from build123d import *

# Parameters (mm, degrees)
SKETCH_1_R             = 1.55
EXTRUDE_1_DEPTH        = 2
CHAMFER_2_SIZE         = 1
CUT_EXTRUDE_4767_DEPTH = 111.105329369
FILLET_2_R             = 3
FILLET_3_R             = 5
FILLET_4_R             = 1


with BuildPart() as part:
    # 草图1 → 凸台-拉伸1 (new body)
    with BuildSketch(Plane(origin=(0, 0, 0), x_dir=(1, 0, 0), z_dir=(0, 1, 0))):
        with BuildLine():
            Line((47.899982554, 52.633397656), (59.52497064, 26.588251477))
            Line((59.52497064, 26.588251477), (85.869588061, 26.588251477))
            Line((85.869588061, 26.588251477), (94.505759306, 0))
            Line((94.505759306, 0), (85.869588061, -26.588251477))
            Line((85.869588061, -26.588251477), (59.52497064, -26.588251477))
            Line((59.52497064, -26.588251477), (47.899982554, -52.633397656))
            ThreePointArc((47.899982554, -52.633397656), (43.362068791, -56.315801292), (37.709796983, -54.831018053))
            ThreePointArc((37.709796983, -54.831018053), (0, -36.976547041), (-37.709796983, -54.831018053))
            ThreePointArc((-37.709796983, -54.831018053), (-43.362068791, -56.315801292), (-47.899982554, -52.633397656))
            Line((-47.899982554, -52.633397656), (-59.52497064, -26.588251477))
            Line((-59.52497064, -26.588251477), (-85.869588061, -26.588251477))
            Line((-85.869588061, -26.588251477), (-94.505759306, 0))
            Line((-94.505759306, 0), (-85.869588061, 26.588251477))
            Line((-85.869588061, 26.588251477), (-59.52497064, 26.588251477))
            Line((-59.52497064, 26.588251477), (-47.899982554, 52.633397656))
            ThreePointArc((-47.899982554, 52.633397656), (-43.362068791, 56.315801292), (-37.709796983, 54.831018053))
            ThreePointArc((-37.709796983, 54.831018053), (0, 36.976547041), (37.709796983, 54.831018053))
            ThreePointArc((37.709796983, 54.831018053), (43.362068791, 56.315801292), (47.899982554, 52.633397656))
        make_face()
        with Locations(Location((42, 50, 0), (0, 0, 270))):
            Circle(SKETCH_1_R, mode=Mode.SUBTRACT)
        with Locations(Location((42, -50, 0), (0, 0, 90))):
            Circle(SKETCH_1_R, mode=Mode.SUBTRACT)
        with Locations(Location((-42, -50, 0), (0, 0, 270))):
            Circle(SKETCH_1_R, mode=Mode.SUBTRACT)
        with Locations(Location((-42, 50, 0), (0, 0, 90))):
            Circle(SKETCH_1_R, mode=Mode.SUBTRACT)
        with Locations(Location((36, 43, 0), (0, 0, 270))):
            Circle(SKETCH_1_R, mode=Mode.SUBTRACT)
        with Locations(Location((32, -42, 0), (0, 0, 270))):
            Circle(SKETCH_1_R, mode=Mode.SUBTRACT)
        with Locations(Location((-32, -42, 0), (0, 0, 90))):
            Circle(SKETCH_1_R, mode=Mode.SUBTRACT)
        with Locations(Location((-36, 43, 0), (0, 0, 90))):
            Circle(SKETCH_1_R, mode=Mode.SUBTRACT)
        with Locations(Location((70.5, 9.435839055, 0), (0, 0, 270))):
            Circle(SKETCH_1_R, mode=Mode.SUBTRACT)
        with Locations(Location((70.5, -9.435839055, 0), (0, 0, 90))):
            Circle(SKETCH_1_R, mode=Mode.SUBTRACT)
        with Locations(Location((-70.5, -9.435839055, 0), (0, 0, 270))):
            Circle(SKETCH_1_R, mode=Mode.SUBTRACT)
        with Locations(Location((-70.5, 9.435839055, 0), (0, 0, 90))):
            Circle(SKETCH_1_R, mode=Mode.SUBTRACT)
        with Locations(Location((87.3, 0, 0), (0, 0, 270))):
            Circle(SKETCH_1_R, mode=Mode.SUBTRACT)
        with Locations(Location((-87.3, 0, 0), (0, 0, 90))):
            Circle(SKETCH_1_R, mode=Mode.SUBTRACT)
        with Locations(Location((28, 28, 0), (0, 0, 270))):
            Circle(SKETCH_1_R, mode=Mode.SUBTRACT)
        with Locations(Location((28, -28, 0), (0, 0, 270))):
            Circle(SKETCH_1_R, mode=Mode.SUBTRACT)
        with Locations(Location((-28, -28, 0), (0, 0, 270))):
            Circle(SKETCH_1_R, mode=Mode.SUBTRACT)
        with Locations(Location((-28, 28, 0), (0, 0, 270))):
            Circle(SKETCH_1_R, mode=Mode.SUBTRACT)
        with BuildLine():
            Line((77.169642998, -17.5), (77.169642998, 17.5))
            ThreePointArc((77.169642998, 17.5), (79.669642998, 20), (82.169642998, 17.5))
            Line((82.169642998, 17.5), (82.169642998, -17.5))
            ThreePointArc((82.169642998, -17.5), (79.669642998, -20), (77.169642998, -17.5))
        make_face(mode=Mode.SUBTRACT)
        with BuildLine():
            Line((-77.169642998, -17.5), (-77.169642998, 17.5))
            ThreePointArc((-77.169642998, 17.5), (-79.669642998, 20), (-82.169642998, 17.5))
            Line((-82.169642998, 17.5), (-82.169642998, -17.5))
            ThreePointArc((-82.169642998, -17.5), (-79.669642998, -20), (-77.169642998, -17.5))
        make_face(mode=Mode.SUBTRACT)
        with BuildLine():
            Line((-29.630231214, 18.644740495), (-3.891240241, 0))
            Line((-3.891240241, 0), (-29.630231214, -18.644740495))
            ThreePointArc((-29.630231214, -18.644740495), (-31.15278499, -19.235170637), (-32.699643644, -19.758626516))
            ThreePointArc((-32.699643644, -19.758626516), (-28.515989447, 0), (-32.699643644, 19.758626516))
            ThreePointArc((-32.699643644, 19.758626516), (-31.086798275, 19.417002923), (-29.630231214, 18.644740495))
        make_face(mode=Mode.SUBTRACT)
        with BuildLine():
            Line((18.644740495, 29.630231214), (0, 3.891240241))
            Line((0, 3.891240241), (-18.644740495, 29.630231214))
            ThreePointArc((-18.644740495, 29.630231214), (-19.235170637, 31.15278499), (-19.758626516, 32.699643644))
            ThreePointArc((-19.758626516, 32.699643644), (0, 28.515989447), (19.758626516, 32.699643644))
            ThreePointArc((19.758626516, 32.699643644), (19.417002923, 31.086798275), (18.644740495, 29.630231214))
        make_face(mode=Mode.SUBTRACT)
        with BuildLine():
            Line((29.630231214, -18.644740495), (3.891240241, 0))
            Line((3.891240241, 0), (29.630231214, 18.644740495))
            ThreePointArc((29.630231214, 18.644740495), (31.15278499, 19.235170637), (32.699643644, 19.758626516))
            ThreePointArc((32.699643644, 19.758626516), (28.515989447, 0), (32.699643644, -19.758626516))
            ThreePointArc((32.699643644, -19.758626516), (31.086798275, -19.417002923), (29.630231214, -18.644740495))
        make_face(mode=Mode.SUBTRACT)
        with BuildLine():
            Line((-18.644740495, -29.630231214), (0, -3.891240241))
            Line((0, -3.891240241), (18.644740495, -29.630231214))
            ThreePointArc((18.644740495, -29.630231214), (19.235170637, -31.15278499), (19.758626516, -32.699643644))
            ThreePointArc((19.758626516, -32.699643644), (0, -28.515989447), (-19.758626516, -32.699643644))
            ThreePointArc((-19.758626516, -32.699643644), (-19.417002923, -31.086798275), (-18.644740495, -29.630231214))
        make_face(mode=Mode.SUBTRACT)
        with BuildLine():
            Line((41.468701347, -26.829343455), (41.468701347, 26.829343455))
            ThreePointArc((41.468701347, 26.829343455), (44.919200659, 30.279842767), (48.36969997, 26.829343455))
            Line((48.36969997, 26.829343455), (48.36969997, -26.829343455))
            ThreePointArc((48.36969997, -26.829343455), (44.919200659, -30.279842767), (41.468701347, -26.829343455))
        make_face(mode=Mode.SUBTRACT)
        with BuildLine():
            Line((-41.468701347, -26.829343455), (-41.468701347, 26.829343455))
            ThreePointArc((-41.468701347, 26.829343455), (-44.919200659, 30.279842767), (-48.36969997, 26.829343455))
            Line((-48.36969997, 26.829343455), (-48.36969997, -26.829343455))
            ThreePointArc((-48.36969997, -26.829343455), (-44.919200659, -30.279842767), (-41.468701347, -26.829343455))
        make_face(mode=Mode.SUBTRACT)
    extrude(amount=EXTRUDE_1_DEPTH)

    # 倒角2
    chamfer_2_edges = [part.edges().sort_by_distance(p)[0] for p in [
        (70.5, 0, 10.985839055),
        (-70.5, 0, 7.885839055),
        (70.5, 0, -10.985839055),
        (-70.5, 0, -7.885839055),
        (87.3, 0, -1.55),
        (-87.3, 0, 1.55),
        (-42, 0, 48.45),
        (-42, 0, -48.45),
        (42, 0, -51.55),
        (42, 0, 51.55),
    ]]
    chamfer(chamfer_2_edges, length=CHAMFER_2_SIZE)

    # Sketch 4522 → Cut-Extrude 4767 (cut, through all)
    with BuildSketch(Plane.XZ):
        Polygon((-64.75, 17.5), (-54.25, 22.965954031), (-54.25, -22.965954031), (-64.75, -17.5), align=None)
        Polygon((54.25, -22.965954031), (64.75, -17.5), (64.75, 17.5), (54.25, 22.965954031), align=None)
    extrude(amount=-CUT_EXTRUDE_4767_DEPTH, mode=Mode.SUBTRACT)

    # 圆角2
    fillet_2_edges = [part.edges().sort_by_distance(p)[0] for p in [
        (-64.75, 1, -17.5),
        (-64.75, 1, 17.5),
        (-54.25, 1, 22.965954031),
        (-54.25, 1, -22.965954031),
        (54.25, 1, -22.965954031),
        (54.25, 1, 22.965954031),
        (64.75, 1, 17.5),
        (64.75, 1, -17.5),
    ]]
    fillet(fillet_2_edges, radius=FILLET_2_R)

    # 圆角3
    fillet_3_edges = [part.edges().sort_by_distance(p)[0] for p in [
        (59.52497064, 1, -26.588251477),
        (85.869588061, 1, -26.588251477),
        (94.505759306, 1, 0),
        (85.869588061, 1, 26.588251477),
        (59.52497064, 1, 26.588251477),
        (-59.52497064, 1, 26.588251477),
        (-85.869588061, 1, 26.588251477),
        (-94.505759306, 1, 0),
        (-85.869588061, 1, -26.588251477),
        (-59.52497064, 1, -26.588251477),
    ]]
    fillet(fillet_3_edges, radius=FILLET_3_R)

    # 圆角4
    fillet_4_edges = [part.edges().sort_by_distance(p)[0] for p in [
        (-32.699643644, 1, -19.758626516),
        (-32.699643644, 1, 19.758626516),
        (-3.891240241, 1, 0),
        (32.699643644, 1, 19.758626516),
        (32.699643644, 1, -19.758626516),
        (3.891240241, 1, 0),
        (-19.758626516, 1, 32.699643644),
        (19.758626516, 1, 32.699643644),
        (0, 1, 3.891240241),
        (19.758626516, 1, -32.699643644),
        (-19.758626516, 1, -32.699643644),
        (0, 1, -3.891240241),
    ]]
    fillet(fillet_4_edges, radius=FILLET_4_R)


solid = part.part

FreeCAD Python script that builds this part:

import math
import FreeCAD as App
import Part
import Sketcher
from FreeCAD import Vector
Q = App.Units.Quantity


def edges_at(feature, points):
    """Names of the edges that pass closest to the given points."""
    edges = feature.Shape.Edges
    near = lambda p: min(range(len(edges)), key=lambda i: edges[i].distToShape(Part.Vertex(*p))[0])
    return sorted({f"Edge{near(p) + 1}" for p in points})


def add_polygon(sketch, points):
    """Adds a closed chain of lines whose ends are joined by coincident constraints."""
    first, n = sketch.GeometryCount, len(points)
    for a, b in zip(points, points[1:] + points[:1]):
        sketch.addGeometry(Part.LineSegment(App.Vector(*a, 0), App.Vector(*b, 0)), False)
    for i in range(n):
        sketch.addConstraint(Sketcher.Constraint("Coincident", first + i, 2, first + (i + 1) % n, 1))

doc = App.newDocument("Part")
body = doc.addObject("PartDesign::Body", "Body")

# Sketch on XZ plane
sketch1 = doc.addObject("Sketcher::SketchObject", "Sketch")
body.addObject(sketch1)
sketch1.AttachmentSupport = (doc.XZ_Plane, [""])
sketch1.MapMode = "FlatFace"
sketch1.addGeometry(Part.LineSegment(Vector(59.5, -26.6, 0), Vector(47.9, -52.6, 0)), False)
sketch1.addGeometry(Part.ArcOfCircle(Part.Circle(Vector(42, -50, 0), Vector(0, 0, 1), 6.5), math.radians(-132), math.radians(-24)), False)
sketch1.addGeometry(Part.ArcOfCircle(Part.Circle(Vector(0, -85.7, 0), Vector(0, 0, 1), 48.7), math.radians(39), math.radians(141)), False)
sketch1.addGeometry(Part.ArcOfCircle(Part.Circle(Vector(-42, -50, 0), Vector(0, 0, 1), 6.5), math.radians(-156), math.radians(-48)), False)
sketch1.addGeometry(Part.LineSegment(Vector(-47.9, -52.6, 0), Vector(-59.5, -26.6, 0)), False)
sketch1.addGeometry(Part.LineSegment(Vector(-59.5, -26.6, 0), Vector(-85.9, -26.6, 0)), False)
sketch1.addGeometry(Part.LineSegment(Vector(-85.9, -26.6, 0), Vector(-94.5, 0, 0)), False)
sketch1.addGeometry(Part.LineSegment(Vector(-94.5, 0, 0), Vector(-85.9, 26.6, 0)), False)
sketch1.addGeometry(Part.LineSegment(Vector(-85.9, 26.6, 0), Vector(-59.5, 26.6, 0)), False)
sketch1.addGeometry(Part.LineSegment(Vector(-59.5, 26.6, 0), Vector(-47.9, 52.6, 0)), False)
sketch1.addGeometry(Part.ArcOfCircle(Part.Circle(Vector(-42, 50, 0), Vector(0, 0, 1), 6.5), math.radians(48), math.radians(156)), False)
sketch1.addGeometry(Part.ArcOfCircle(Part.Circle(Vector(0, 85.7, 0), Vector(0, 0, 1), 48.7), math.radians(-141), math.radians(-39)), False)
sketch1.addGeometry(Part.ArcOfCircle(Part.Circle(Vector(42, 50, 0), Vector(0, 0, 1), 6.5), math.radians(24), math.radians(132)), False)
sketch1.addGeometry(Part.LineSegment(Vector(47.9, 52.6, 0), Vector(59.5, 26.6, 0)), False)
sketch1.addGeometry(Part.LineSegment(Vector(59.5, 26.6, 0), Vector(85.9, 26.6, 0)), False)
sketch1.addGeometry(Part.LineSegment(Vector(85.9, 26.6, 0), Vector(94.5, 0, 0)), False)
sketch1.addGeometry(Part.LineSegment(Vector(94.5, 0, 0), Vector(85.9, -26.6, 0)), False)
sketch1.addGeometry(Part.LineSegment(Vector(85.9, -26.6, 0), Vector(59.5, -26.6, 0)), False)
sketch1.addGeometry(Part.Circle(Vector(42, 50, 0), Vector(0, 0, 1), 1.6), False)
sketch1.addGeometry(Part.Circle(Vector(32, 42, 0), Vector(0, 0, 1), 1.6), False)
sketch1.addGeometry(Part.Circle(Vector(28, 28, 0), Vector(0, 0, 1), 1.6), False)
sketch1.addGeometry(Part.Circle(Vector(70.5, 9.4, 0), Vector(0, 0, 1), 1.6), False)
sketch1.addGeometry(Part.Circle(Vector(-42, 50, 0), Vector(0, 0, 1), 1.6), False)
sketch1.addGeometry(Part.Circle(Vector(-32, 42, 0), Vector(0, 0, 1), 1.6), False)
sketch1.addGeometry(Part.Circle(Vector(-28, 28, 0), Vector(0, 0, 1), 1.6), False)
sketch1.addGeometry(Part.LineSegment(Vector(-18.6, 29.6, 0), Vector(0, 3.9, 0)), False)
sketch1.addGeometry(Part.LineSegment(Vector(0, 3.9, 0), Vector(18.6, 29.6, 0)), False)
sketch1.addGeometry(Part.ArcOfCircle(Part.Circle(Vector(-15.9, 43.9, 0), Vector(0, 0, 1), 37.4), math.radians(-22.45), math.radians(-17.45)), False)
sketch1.addGeometry(Part.ArcOfCircle(Part.Circle(Vector(0, 77.3, 0), Vector(0, 0, 1), 48.8), math.radians(-114), math.radians(-66)), False)
sketch1.addGeometry(Part.ArcOfCircle(Part.Circle(Vector(-13.8, 33.1, 0), Vector(0, 0, 1), 5.9), math.radians(-176), math.radians(-144)), False)
sketch1.addGeometry(Part.Circle(Vector(-70.5, 9.4, 0), Vector(0, 0, 1), 1.6), False)
sketch1.addGeometry(Part.Circle(Vector(87.3, 0, 0), Vector(0, 0, 1), 1.6), False)
sketch1.addGeometry(Part.LineSegment(Vector(77.2, 17.5, 0), Vector(77.2, -17.5, 0)), False)
sketch1.addGeometry(Part.ArcOfCircle(Part.Circle(Vector(79.7, -17.5, 0), Vector(0, 0, 1), 2.5), math.radians(180), math.radians(360)), False)
sketch1.addGeometry(Part.LineSegment(Vector(82.2, -17.5, 0), Vector(82.2, 17.5, 0)), False)
sketch1.addGeometry(Part.ArcOfCircle(Part.Circle(Vector(79.7, 17.5, 0), Vector(0, 0, 1), 2.5), math.radians(0), math.radians(180)), False)
sketch1.addGeometry(Part.Circle(Vector(70.5, -9.4, 0), Vector(0, 0, 1), 1.6), False)
sketch1.addGeometry(Part.LineSegment(Vector(41.5, 26.8, 0), Vector(41.5, -26.8, 0)), False)
sketch1.addGeometry(Part.ArcOfCircle(Part.Circle(Vector(44.9, -26.8, 0), Vector(0, 0, 1), 3.5), math.radians(180), math.radians(360)), False)
sketch1.addGeometry(Part.LineSegment(Vector(48.4, -26.8, 0), Vector(48.4, 26.8, 0)), False)
sketch1.addGeometry(Part.ArcOfCircle(Part.Circle(Vector(44.9, 26.8, 0), Vector(0, 0, 1), 3.5), math.radians(0), math.radians(180)), False)
sketch1.addGeometry(Part.LineSegment(Vector(29.6, 18.6, 0), Vector(3.9, 0, 0)), False)
sketch1.addGeometry(Part.LineSegment(Vector(3.9, 0, 0), Vector(29.6, -18.6, 0)), False)
sketch1.addGeometry(Part.ArcOfCircle(Part.Circle(Vector(43.9, 15.9, 0), Vector(0, 0, 1), 37.4), math.radians(-112.45), math.radians(-107.45)), False)
sketch1.addGeometry(Part.ArcOfCircle(Part.Circle(Vector(77.3, 0, 0), Vector(0, 0, 1), 48.8), math.radians(156), math.radians(204)), False)
sketch1.addGeometry(Part.ArcOfCircle(Part.Circle(Vector(33.1, 13.8, 0), Vector(0, 0, 1), 5.9), math.radians(94), math.radians(126)), False)
sketch1.addGeometry(Part.Circle(Vector(28, -28, 0), Vector(0, 0, 1), 1.6), False)
sketch1.addGeometry(Part.Circle(Vector(36, -43, 0), Vector(0, 0, 1), 1.6), False)
sketch1.addGeometry(Part.Circle(Vector(42, -50, 0), Vector(0, 0, 1), 1.6), False)
sketch1.addGeometry(Part.LineSegment(Vector(-29.6, -18.6, 0), Vector(-3.9, 0, 0)), False)
sketch1.addGeometry(Part.LineSegment(Vector(-3.9, 0, 0), Vector(-29.6, 18.6, 0)), False)
sketch1.addGeometry(Part.ArcOfCircle(Part.Circle(Vector(-43.9, -15.9, 0), Vector(0, 0, 1), 37.4), math.radians(67.55), math.radians(72.55)), False)
sketch1.addGeometry(Part.ArcOfCircle(Part.Circle(Vector(-77.3, 0, 0), Vector(0, 0, 1), 48.8), math.radians(-24), math.radians(24)), False)
sketch1.addGeometry(Part.ArcOfCircle(Part.Circle(Vector(-33.1, -13.8, 0), Vector(0, 0, 1), 5.9), math.radians(-86), math.radians(-54)), False)
sketch1.addGeometry(Part.LineSegment(Vector(18.6, -29.6, 0), Vector(0, -3.9, 0)), False)
sketch1.addGeometry(Part.LineSegment(Vector(0, -3.9, 0), Vector(-18.6, -29.6, 0)), False)
sketch1.addGeometry(Part.ArcOfCircle(Part.Circle(Vector(15.9, -43.9, 0), Vector(0, 0, 1), 37.4), math.radians(157.55), math.radians(162.55)), False)
sketch1.addGeometry(Part.ArcOfCircle(Part.Circle(Vector(0, -77.3, 0), Vector(0, 0, 1), 48.8), math.radians(66), math.radians(114)), False)
sketch1.addGeometry(Part.ArcOfCircle(Part.Circle(Vector(13.8, -33.1, 0), Vector(0, 0, 1), 5.9), math.radians(4), math.radians(36)), False)
sketch1.addGeometry(Part.ArcOfCircle(Part.Circle(Vector(-44.9, 26.8, 0), Vector(0, 0, 1), 3.5), math.radians(0), math.radians(180)), False)
sketch1.addGeometry(Part.LineSegment(Vector(-48.4, 26.8, 0), Vector(-48.4, -26.8, 0)), False)
sketch1.addGeometry(Part.ArcOfCircle(Part.Circle(Vector(-44.9, -26.8, 0), Vector(0, 0, 1), 3.5), math.radians(180), math.radians(360)), False)
sketch1.addGeometry(Part.LineSegment(Vector(-41.5, -26.8, 0), Vector(-41.5, 26.8, 0)), False)
sketch1.addGeometry(Part.ArcOfCircle(Part.Circle(Vector(-79.7, 17.5, 0), Vector(0, 0, 1), 2.5), math.radians(0), math.radians(180)), False)
sketch1.addGeometry(Part.LineSegment(Vector(-82.2, 17.5, 0), Vector(-82.2, -17.5, 0)), False)
sketch1.addGeometry(Part.ArcOfCircle(Part.Circle(Vector(-79.7, -17.5, 0), Vector(0, 0, 1), 2.5), math.radians(180), math.radians(360)), False)
sketch1.addGeometry(Part.LineSegment(Vector(-77.2, -17.5, 0), Vector(-77.2, 17.5, 0)), False)
sketch1.addGeometry(Part.Circle(Vector(-87.3, 0, 0), Vector(0, 0, 1), 1.6), False)
sketch1.addGeometry(Part.Circle(Vector(-70.5, -9.4, 0), Vector(0, 0, 1), 1.6), False)
sketch1.addGeometry(Part.Circle(Vector(-28, -28, 0), Vector(0, 0, 1), 1.6), False)
sketch1.addGeometry(Part.Circle(Vector(-36, -43, 0), Vector(0, 0, 1), 1.6), False)
sketch1.addGeometry(Part.Circle(Vector(-42, -50, 0), Vector(0, 0, 1), 1.6), False)
sketch1.addConstraint(Sketcher.Constraint("Tangent", 0, 2, 1, 2))
sketch1.addConstraint(Sketcher.Constraint("Coincident", 1, 1, 2, 1))
sketch1.addConstraint(Sketcher.Constraint("Coincident", 2, 2, 3, 2))
sketch1.addConstraint(Sketcher.Constraint("Tangent", 3, 1, 4, 1))
sketch1.addConstraint(Sketcher.Constraint("Coincident", 4, 2, 5, 1))
sketch1.addConstraint(Sketcher.Constraint("Coincident", 5, 2, 6, 1))
sketch1.addConstraint(Sketcher.Constraint("Coincident", 6, 2, 7, 1))
sketch1.addConstraint(Sketcher.Constraint("Coincident", 7, 2, 8, 1))
sketch1.addConstraint(Sketcher.Constraint("Coincident", 8, 2, 9, 1))
sketch1.addConstraint(Sketcher.Constraint("Tangent", 9, 2, 10, 2))
sketch1.addConstraint(Sketcher.Constraint("Coincident", 10, 1, 11, 1))
sketch1.addConstraint(Sketcher.Constraint("Coincident", 11, 2, 12, 2))
sketch1.addConstraint(Sketcher.Constraint("Tangent", 12, 1, 13, 1))
sketch1.addConstraint(Sketcher.Constraint("Coincident", 13, 2, 14, 1))
sketch1.addConstraint(Sketcher.Constraint("Coincident", 14, 2, 15, 1))
sketch1.addConstraint(Sketcher.Constraint("Coincident", 15, 2, 16, 1))
sketch1.addConstraint(Sketcher.Constraint("Coincident", 16, 2, 17, 1))
sketch1.addConstraint(Sketcher.Constraint("Coincident", 17, 2, 0, 1))
sketch1.addConstraint(Sketcher.Constraint("Coincident", 25, 2, 26, 1))
sketch1.addConstraint(Sketcher.Constraint("Coincident", 26, 2, 27, 1))
sketch1.addConstraint(Sketcher.Constraint("Coincident", 27, 2, 28, 2))
sketch1.addConstraint(Sketcher.Constraint("Coincident", 28, 1, 29, 1))
sketch1.addConstraint(Sketcher.Constraint("Tangent", 29, 2, 25, 1))
sketch1.addConstraint(Sketcher.Constraint("Tangent", 32, 2, 33, 1))
sketch1.addConstraint(Sketcher.Constraint("Tangent", 33, 2, 34, 1))
sketch1.addConstraint(Sketcher.Constraint("Tangent", 34, 2, 35, 1))
sketch1.addConstraint(Sketcher.Constraint("Tangent", 35, 2, 32, 1))
sketch1.addConstraint(Sketcher.Constraint("Tangent", 37, 2, 38, 1))
sketch1.addConstraint(Sketcher.Constraint("Tangent", 38, 2, 39, 1))
sketch1.addConstraint(Sketcher.Constraint("Tangent", 39, 2, 40, 1))
sketch1.addConstraint(Sketcher.Constraint("Tangent", 40, 2, 37, 1))
sketch1.addConstraint(Sketcher.Constraint("Coincident", 41, 2, 42, 1))
sketch1.addConstraint(Sketcher.Constraint("Coincident", 42, 2, 43, 1))
sketch1.addConstraint(Sketcher.Constraint("Coincident", 43, 2, 44, 2))
sketch1.addConstraint(Sketcher.Constraint("Coincident", 44, 1, 45, 1))
sketch1.addConstraint(Sketcher.Constraint("Tangent", 45, 2, 41, 1))
sketch1.addConstraint(Sketcher.Constraint("Coincident", 49, 2, 50, 1))
sketch1.addConstraint(Sketcher.Constraint("Coincident", 50, 2, 51, 1))
sketch1.addConstraint(Sketcher.Constraint("Coincident", 51, 2, 52, 2))
sketch1.addConstraint(Sketcher.Constraint("Coincident", 52, 1, 53, 1))
sketch1.addConstraint(Sketcher.Constraint("Tangent", 53, 2, 49, 1))
sketch1.addConstraint(Sketcher.Constraint("Coincident", 54, 2, 55, 1))
sketch1.addConstraint(Sketcher.Constraint("Coincident", 55, 2, 56, 1))
sketch1.addConstraint(Sketcher.Constraint("Coincident", 56, 2, 57, 2))
sketch1.addConstraint(Sketcher.Constraint("Coincident", 57, 1, 58, 1))
sketch1.addConstraint(Sketcher.Constraint("Tangent", 58, 2, 54, 1))
sketch1.addConstraint(Sketcher.Constraint("Tangent", 59, 2, 60, 1))
sketch1.addConstraint(Sketcher.Constraint("Tangent", 60, 2, 61, 1))
sketch1.addConstraint(Sketcher.Constraint("Tangent", 61, 2, 62, 1))
sketch1.addConstraint(Sketcher.Constraint("Tangent", 62, 2, 59, 1))
sketch1.addConstraint(Sketcher.Constraint("Tangent", 63, 2, 64, 1))
sketch1.addConstraint(Sketcher.Constraint("Tangent", 64, 2, 65, 1))
sketch1.addConstraint(Sketcher.Constraint("Tangent", 65, 2, 66, 1))
sketch1.addConstraint(Sketcher.Constraint("Tangent", 66, 2, 63, 1))
sketch1.addConstraint(Sketcher.Constraint("Horizontal", 5))
sketch1.addConstraint(Sketcher.Constraint("Horizontal", 8))
sketch1.addConstraint(Sketcher.Constraint("Horizontal", 14))
sketch1.addConstraint(Sketcher.Constraint("Horizontal", 17))
sketch1.addConstraint(Sketcher.Constraint("Vertical", 32))
sketch1.addConstraint(Sketcher.Constraint("Vertical", 34))
sketch1.addConstraint(Sketcher.Constraint("Vertical", 37))
sketch1.addConstraint(Sketcher.Constraint("Vertical", 39))
sketch1.addConstraint(Sketcher.Constraint("Vertical", 60))
sketch1.addConstraint(Sketcher.Constraint("Vertical", 62))
sketch1.addConstraint(Sketcher.Constraint("Vertical", 64))
sketch1.addConstraint(Sketcher.Constraint("Vertical", 66))
sketch1.addConstraint(Sketcher.Constraint("Coincident", 18, 3, 12, 3))
sketch1.addConstraint(Sketcher.Constraint("Coincident", 22, 3, 10, 3))
sketch1.addConstraint(Sketcher.Constraint("Coincident", 48, 3, 1, 3))
sketch1.addConstraint(Sketcher.Constraint("Coincident", 71, 3, 3, 3))
sketch1.addConstraint(Sketcher.Constraint("Equal", 1, 3))
sketch1.addConstraint(Sketcher.Constraint("Equal", 3, 10))
sketch1.addConstraint(Sketcher.Constraint("Equal", 2, 11))
sketch1.addConstraint(Sketcher.Constraint("Equal", 10, 12))
sketch1.addConstraint(Sketcher.Constraint("Equal", 18, 19))
sketch1.addConstraint(Sketcher.Constraint("Equal", 19, 20))
sketch1.addConstraint(Sketcher.Constraint("Equal", 20, 21))
sketch1.addConstraint(Sketcher.Constraint("Equal", 21, 22))
sketch1.addConstraint(Sketcher.Constraint("Equal", 22, 23))
sketch1.addConstraint(Sketcher.Constraint("Equal", 23, 24))
sketch1.addConstraint(Sketcher.Constraint("Equal", 11, 28))
sketch1.addConstraint(Sketcher.Constraint("Equal", 24, 30))
sketch1.addConstraint(Sketcher.Constraint("Equal", 30, 31))
sketch1.addConstraint(Sketcher.Constraint("Equal", 31, 36))
sketch1.addConstraint(Sketcher.Constraint("Equal", 27, 43))
sketch1.addConstraint(Sketcher.Constraint("Equal", 28, 44))
sketch1.addConstraint(Sketcher.Constraint("Equal", 29, 45))
sketch1.addConstraint(Sketcher.Constraint("Equal", 36, 46))
sketch1.addConstraint(Sketcher.Constraint("Equal", 46, 47))
sketch1.addConstraint(Sketcher.Constraint("Equal", 47, 48))
sketch1.addConstraint(Sketcher.Constraint("Equal", 43, 51))
sketch1.addConstraint(Sketcher.Constraint("Equal", 44, 52))
sketch1.addConstraint(Sketcher.Constraint("Equal", 45, 53))
sketch1.addConstraint(Sketcher.Constraint("Equal", 51, 56))
sketch1.addConstraint(Sketcher.Constraint("Equal", 52, 57))
sketch1.addConstraint(Sketcher.Constraint("Equal", 53, 58))
sketch1.addConstraint(Sketcher.Constraint("Equal", 40, 59))
sketch1.addConstraint(Sketcher.Constraint("Equal", 35, 63))
sketch1.addConstraint(Sketcher.Constraint("Equal", 48, 67))
sketch1.addConstraint(Sketcher.Constraint("Equal", 67, 68))
sketch1.addConstraint(Sketcher.Constraint("Equal", 68, 69))
sketch1.addConstraint(Sketcher.Constraint("Equal", 69, 70))
sketch1.addConstraint(Sketcher.Constraint("Equal", 70, 71))
sketch1.addConstraint(Sketcher.Constraint("Symmetric", 1, 3, 10, 3, -1, 1))
sketch1.addConstraint(Sketcher.Constraint("Symmetric", 2, 3, 11, 3, -1, 1))
sketch1.addConstraint(Sketcher.Constraint("Symmetric", 3, 3, 12, 3, -1, 1))
sketch1.addConstraint(Sketcher.Constraint("Symmetric", 30, 3, 36, 3, -1, 1))
sketch1.addConstraint(Sketcher.Constraint("Symmetric", 24, 3, 46, 3, -1, 1))
sketch1.addConstraint(Sketcher.Constraint("Symmetric", 43, 3, 51, 3, -1, 1))
sketch1.addConstraint(Sketcher.Constraint("Symmetric", 44, 3, 52, 3, -1, 1))
sketch1.addConstraint(Sketcher.Constraint("Symmetric", 45, 3, 53, 3, -1, 1))
sketch1.addConstraint(Sketcher.Constraint("Symmetric", 27, 3, 56, 3, -1, 1))
sketch1.addConstraint(Sketcher.Constraint("Symmetric", 28, 3, 57, 3, -1, 1))
sketch1.addConstraint(Sketcher.Constraint("Symmetric", 29, 3, 58, 3, -1, 1))
sketch1.addConstraint(Sketcher.Constraint("Symmetric", 38, 3, 59, 3, -1, 1))
sketch1.addConstraint(Sketcher.Constraint("Symmetric", 33, 3, 63, 3, -1, 1))
sketch1.addConstraint(Sketcher.Constraint("Symmetric", 31, 3, 67, 3, -1, 1))
sketch1.addConstraint(Sketcher.Constraint("Symmetric", 21, 3, 68, 3, -1, 1))
sketch1.addConstraint(Sketcher.Constraint("Symmetric", 20, 3, 69, 3, -1, 1))
sketch1.addConstraint(Sketcher.Constraint("Symmetric", 4, 2, 13, 2, -1, 1))
sketch1.addConstraint(Sketcher.Constraint("Symmetric", 6, 2, 15, 2, -1, 1))
sketch1.addConstraint(Sketcher.Constraint("Symmetric", 7, 2, 16, 2, -1, 1))
sketch1.addConstraint(Sketcher.Constraint("Symmetric", 41, 2, 49, 2, -1, 1))
sketch1.addConstraint(Sketcher.Constraint("Symmetric", 25, 2, 54, 2, -1, 1))
sketch1.addConstraint(Sketcher.Constraint("Symmetric", 1, 3, 3, 3, -2))
sketch1.addConstraint(Sketcher.Constraint("Symmetric", 19, 3, 23, 3, -2))
sketch1.addConstraint(Sketcher.Constraint("Symmetric", 20, 3, 24, 3, -2))
sketch1.addConstraint(Sketcher.Constraint("Symmetric", 21, 3, 30, 3, -2))
sketch1.addConstraint(Sketcher.Constraint("Symmetric", 47, 3, 70, 3, -2))
sketch1.addConstraint(Sketcher.Constraint("Symmetric", 8, 2, 13, 2, -2))
sketch1.addConstraint(Sketcher.Constraint("Symmetric", 27, 2, 28, 1, -2))
sketch1.addConstraint(Sketcher.Constraint("Symmetric", 26, 2, 29, 2, -2))
sketch1.addConstraint(Sketcher.Constraint("Symmetric", 45, 2, 50, 2, -2))
sketch1.addConstraint(Sketcher.Constraint("Symmetric", 44, 1, 51, 2, -2))
sketch1.addConstraint(Sketcher.Constraint("PointOnObject", 2, 3, -2))
sketch1.addConstraint(Sketcher.Constraint("PointOnObject", 31, 3, -1))
sketch1.addConstraint(Sketcher.Constraint("PointOnObject", 6, 2, -1))
sketch1.addConstraint(Sketcher.Constraint("PointOnObject", 25, 2, -2))
sketch1.addConstraint(Sketcher.Constraint("PointOnObject", 41, 2, -1))
sketch1.addConstraint(Sketcher.Constraint("Parallel", 0, 9))
sketch1.addConstraint(Sketcher.Constraint("Parallel", 6, 15))
sketch1.addConstraint(Sketcher.Constraint("Perpendicular", 25, 41))
sketch1.addConstraint(Sketcher.Constraint("Perpendicular", 26, 42))
sketch1.addConstraint(Sketcher.Constraint("Perpendicular", 50, 55))
sketch1.addConstraint(Sketcher.Constraint("Horizontal", 40, 3, 59, 3))
sketch1.addConstraint(Sketcher.Constraint("Horizontal", 38, 3, 61, 3))
sketch1.addConstraint(Sketcher.Constraint("Horizontal", 35, 3, 63, 3))
sketch1.addConstraint(Sketcher.Constraint("Horizontal", 33, 3, 65, 3))
sketch1.addConstraint(Sketcher.Constraint("Vertical", 5, 2, 7, 2))
sketch1.addConstraint(Sketcher.Constraint("Equal", 26, 41))
sketch1.addConstraint(Sketcher.Constraint("Diameter", 18, Q("3.1 mm")))
sketch1.addConstraint(Sketcher.Constraint("Radius", 33, Q("2.5 mm")))
sketch1.addConstraint(Sketcher.Constraint("DistanceY", 32, 2, 32, 1, Q("35 mm")))
sketch1.addConstraint(Sketcher.Constraint("Radius", 2, Q("48.75 mm")))
sketch1.addConstraint(Sketcher.Constraint("DistanceX", -1, 1, 1, 3, Q("42 mm")))
sketch1.addConstraint(Sketcher.Constraint("DistanceY", 1, 3, -1, 1, Q("50 mm")))
sketch1.addConstraint(Sketcher.Constraint("DistanceX", -1, 1, 19, 3, Q("32 mm")))
sketch1.addConstraint(Sketcher.Constraint("DistanceY", -1, 1, 19, 3, Q("42 mm")))
sketch1.addConstraint(Sketcher.Constraint("DistanceX", -1, 1, 20, 3, Q("28 mm")))
sketch1.addConstraint(Sketcher.Constraint("DistanceY", -1, 1, 20, 3, Q("28 mm")))
sketch1.addConstraint(Sketcher.Constraint("DistanceX", -1, 1, 47, 3, Q("36 mm")))
sketch1.addConstraint(Sketcher.Constraint("DistanceY", 47, 3, -1, 1, Q("43 mm")))
sketch1.addConstraint(Sketcher.Constraint("DistanceX", -1, 1, 21, 3, Q("70.5 mm")))
sketch1.addConstraint(Sketcher.Constraint("DistanceX", -1, 1, 31, 3, Q("87.3 mm")))
sketch1.addConstraint(Sketcher.Constraint("Radius", 38, Q("3.450499 mm")))
sketch1.addConstraint(Sketcher.Constraint("Radius", 29, Q("5.93291 mm")))
sketch1.addConstraint(Sketcher.Constraint("Radius", 1, Q("6.461004 mm")))
sketch1.addConstraint(Sketcher.Constraint("Radius", 27, Q("37.429505 mm")))
sketch1.addConstraint(Sketcher.Constraint("DistanceX", -1, 1, 38, 3, Q("44.919201 mm")))
sketch1.addConstraint(Sketcher.Constraint("DistanceX", 5, 2, 5, 1, Q("26.344617 mm")))
sketch1.addConstraint(Sketcher.Constraint("DistanceY", 37, 2, 37, 1, Q("53.658687 mm")))
sketch1.addConstraint(Sketcher.Constraint("DistanceY", -1, 1, 21, 3, Q("9.435839 mm")))
sketch1.addConstraint(Sketcher.Constraint("DistanceX", 27, 3, -1, 1, Q("15.949159 mm")))
sketch1.addConstraint(Sketcher.Constraint("DistanceY", -1, 1, 28, 3, Q("77.265989 mm")))
sketch1.addConstraint(Sketcher.Constraint("DistanceY", -1, 1, 43, 3, Q("15.949159 mm")))
sketch1.addConstraint(Sketcher.Constraint("DistanceX", -1, 1, 44, 3, Q("77.265989 mm")))
sketch1.addConstraint(Sketcher.Constraint("DistanceY", 1, 1, -1, 1, Q("54.831018 mm")))
sketch1.addConstraint(Sketcher.Constraint("DistanceX", 4, 2, -1, 1, Q("59.524971 mm")))
sketch1.addConstraint(Sketcher.Constraint("DistanceY", 4, 2, -1, 1, Q("26.588251 mm")))
sketch1.addConstraint(Sketcher.Constraint("DistanceX", 6, 2, -1, 1, Q("94.505759 mm")))
sketch1.addConstraint(Sketcher.Constraint("DistanceY", -1, 1, 25, 2, Q("3.89124 mm")))
sketch1.addConstraint(Sketcher.Constraint("DistanceX", -1, 1, 26, 2, Q("18.64474 mm")))
sketch1.addConstraint(Sketcher.Constraint("DistanceX", -1, 1, 33, 3, Q("79.669643 mm")))
pad1 = doc.addObject("PartDesign::Pad", "Pad")
body.addObject(pad1)
pad1.Profile = sketch1
pad1.Length = 2
pad1.Reversed = True
doc.recompute()

chamfer = doc.addObject("PartDesign::Chamfer", "Chamfer")
body.addObject(chamfer)
chamfer.Base = (pad1, edges_at(pad1, [
    (70.5, 0, 10.986),
    (-70.5, 0, 7.886),
    (70.5, 0, -10.986),
    (-70.5, 0, -7.886),
    (87.3, 0, -1.55),
    (-87.3, 0, 1.55),
    (-42, 0, 48.45),
    (-42, 0, -48.45),
    (42, 0, -51.55),
    (42, 0, 51.55),
]))
chamfer.Size = 1

# Sketch on XZ plane
sketch2 = doc.addObject("Sketcher::SketchObject", "Sketch001")
body.addObject(sketch2)
sketch2.AttachmentSupport = (doc.XZ_Plane, [""])
sketch2.MapMode = "FlatFace"
add_polygon(sketch2, [(-54, 23), (-65, 18), (-65, -18), (-54, -23)])  # lines 0-3
add_polygon(sketch2, [(54, -23), (65, -18), (65, 18), (54, 23)])  # lines 4-7
sketch2.addConstraint(Sketcher.Constraint("Vertical", 1))
sketch2.addConstraint(Sketcher.Constraint("Vertical", 3))
sketch2.addConstraint(Sketcher.Constraint("Vertical", 5))
sketch2.addConstraint(Sketcher.Constraint("Vertical", 7))
sketch2.addConstraint(Sketcher.Constraint("Symmetric", 0, 2, 4, 2, -1, 1))
sketch2.addConstraint(Sketcher.Constraint("Symmetric", 2, 2, 6, 2, -1, 1))
sketch2.addConstraint(Sketcher.Constraint("Parallel", 0, 4))
sketch2.addConstraint(Sketcher.Constraint("Parallel", 2, 6))
sketch2.addConstraint(Sketcher.Constraint("Horizontal", 1, 2, 4, 2))
sketch2.addConstraint(Sketcher.Constraint("Horizontal", 3, 2, 6, 2))
sketch2.addConstraint(Sketcher.Constraint("DistanceY", 1, 2, 1, 1, Q("35 mm")))
sketch2.addConstraint(Sketcher.Constraint("Angle", 0, Q("-152.5 deg")))
sketch2.addConstraint(Sketcher.Constraint("DistanceX", 2, 2, 4, 2, Q("119 mm")))
sketch2.addConstraint(Sketcher.Constraint("DistanceX", 1, 2, 2, 2, Q("10.5 mm")))
pocket1 = doc.addObject("PartDesign::Pocket", "Pocket")
body.addObject(pocket1)
pocket1.Profile = sketch2
pocket1.Type = "ThroughAll"
doc.recompute()

fillet = doc.addObject("PartDesign::Fillet", "Fillet")
body.addObject(fillet)
fillet.Base = (pocket1, edges_at(pocket1, [
    (-64.75, 1, -17.5),
    (-64.75, 1, 17.5),
    (-54.25, 1, 22.966),
    (-54.25, 1, -22.966),
    (54.25, 1, -22.966),
    (54.25, 1, 22.966),
    (64.75, 1, 17.5),
    (64.75, 1, -17.5),
]))
fillet.Radius = 3
doc.recompute()

fillet2 = doc.addObject("PartDesign::Fillet", "Fillet001")
body.addObject(fillet2)
fillet2.Base = (fillet, edges_at(fillet, [
    (59.525, 1, -26.588),
    (85.87, 1, -26.588),
    (94.506, 1, 0),
    (85.87, 1, 26.588),
    (59.525, 1, 26.588),
    (-59.525, 1, 26.588),
    (-85.87, 1, 26.588),
    (-94.506, 1, 0),
    (-85.87, 1, -26.588),
    (-59.525, 1, -26.588),
]))
fillet2.Radius = 5
doc.recompute()

fillet3 = doc.addObject("PartDesign::Fillet", "Fillet002")
body.addObject(fillet3)
fillet3.Base = (fillet2, edges_at(fillet2, [
    (-32.7, 1, -19.759),
    (-32.7, 1, 19.759),
    (-3.891, 1, 0),
    (32.7, 1, 19.759),
    (32.7, 1, -19.759),
    (3.891, 1, 0),
    (-19.759, 1, 32.7),
    (19.759, 1, 32.7),
    (0, 1, 3.891),
    (19.759, 1, -32.7),
    (-19.759, 1, -32.7),
    (0, 1, -3.891),
]))
fillet3.Radius = 1

doc.recompute()
